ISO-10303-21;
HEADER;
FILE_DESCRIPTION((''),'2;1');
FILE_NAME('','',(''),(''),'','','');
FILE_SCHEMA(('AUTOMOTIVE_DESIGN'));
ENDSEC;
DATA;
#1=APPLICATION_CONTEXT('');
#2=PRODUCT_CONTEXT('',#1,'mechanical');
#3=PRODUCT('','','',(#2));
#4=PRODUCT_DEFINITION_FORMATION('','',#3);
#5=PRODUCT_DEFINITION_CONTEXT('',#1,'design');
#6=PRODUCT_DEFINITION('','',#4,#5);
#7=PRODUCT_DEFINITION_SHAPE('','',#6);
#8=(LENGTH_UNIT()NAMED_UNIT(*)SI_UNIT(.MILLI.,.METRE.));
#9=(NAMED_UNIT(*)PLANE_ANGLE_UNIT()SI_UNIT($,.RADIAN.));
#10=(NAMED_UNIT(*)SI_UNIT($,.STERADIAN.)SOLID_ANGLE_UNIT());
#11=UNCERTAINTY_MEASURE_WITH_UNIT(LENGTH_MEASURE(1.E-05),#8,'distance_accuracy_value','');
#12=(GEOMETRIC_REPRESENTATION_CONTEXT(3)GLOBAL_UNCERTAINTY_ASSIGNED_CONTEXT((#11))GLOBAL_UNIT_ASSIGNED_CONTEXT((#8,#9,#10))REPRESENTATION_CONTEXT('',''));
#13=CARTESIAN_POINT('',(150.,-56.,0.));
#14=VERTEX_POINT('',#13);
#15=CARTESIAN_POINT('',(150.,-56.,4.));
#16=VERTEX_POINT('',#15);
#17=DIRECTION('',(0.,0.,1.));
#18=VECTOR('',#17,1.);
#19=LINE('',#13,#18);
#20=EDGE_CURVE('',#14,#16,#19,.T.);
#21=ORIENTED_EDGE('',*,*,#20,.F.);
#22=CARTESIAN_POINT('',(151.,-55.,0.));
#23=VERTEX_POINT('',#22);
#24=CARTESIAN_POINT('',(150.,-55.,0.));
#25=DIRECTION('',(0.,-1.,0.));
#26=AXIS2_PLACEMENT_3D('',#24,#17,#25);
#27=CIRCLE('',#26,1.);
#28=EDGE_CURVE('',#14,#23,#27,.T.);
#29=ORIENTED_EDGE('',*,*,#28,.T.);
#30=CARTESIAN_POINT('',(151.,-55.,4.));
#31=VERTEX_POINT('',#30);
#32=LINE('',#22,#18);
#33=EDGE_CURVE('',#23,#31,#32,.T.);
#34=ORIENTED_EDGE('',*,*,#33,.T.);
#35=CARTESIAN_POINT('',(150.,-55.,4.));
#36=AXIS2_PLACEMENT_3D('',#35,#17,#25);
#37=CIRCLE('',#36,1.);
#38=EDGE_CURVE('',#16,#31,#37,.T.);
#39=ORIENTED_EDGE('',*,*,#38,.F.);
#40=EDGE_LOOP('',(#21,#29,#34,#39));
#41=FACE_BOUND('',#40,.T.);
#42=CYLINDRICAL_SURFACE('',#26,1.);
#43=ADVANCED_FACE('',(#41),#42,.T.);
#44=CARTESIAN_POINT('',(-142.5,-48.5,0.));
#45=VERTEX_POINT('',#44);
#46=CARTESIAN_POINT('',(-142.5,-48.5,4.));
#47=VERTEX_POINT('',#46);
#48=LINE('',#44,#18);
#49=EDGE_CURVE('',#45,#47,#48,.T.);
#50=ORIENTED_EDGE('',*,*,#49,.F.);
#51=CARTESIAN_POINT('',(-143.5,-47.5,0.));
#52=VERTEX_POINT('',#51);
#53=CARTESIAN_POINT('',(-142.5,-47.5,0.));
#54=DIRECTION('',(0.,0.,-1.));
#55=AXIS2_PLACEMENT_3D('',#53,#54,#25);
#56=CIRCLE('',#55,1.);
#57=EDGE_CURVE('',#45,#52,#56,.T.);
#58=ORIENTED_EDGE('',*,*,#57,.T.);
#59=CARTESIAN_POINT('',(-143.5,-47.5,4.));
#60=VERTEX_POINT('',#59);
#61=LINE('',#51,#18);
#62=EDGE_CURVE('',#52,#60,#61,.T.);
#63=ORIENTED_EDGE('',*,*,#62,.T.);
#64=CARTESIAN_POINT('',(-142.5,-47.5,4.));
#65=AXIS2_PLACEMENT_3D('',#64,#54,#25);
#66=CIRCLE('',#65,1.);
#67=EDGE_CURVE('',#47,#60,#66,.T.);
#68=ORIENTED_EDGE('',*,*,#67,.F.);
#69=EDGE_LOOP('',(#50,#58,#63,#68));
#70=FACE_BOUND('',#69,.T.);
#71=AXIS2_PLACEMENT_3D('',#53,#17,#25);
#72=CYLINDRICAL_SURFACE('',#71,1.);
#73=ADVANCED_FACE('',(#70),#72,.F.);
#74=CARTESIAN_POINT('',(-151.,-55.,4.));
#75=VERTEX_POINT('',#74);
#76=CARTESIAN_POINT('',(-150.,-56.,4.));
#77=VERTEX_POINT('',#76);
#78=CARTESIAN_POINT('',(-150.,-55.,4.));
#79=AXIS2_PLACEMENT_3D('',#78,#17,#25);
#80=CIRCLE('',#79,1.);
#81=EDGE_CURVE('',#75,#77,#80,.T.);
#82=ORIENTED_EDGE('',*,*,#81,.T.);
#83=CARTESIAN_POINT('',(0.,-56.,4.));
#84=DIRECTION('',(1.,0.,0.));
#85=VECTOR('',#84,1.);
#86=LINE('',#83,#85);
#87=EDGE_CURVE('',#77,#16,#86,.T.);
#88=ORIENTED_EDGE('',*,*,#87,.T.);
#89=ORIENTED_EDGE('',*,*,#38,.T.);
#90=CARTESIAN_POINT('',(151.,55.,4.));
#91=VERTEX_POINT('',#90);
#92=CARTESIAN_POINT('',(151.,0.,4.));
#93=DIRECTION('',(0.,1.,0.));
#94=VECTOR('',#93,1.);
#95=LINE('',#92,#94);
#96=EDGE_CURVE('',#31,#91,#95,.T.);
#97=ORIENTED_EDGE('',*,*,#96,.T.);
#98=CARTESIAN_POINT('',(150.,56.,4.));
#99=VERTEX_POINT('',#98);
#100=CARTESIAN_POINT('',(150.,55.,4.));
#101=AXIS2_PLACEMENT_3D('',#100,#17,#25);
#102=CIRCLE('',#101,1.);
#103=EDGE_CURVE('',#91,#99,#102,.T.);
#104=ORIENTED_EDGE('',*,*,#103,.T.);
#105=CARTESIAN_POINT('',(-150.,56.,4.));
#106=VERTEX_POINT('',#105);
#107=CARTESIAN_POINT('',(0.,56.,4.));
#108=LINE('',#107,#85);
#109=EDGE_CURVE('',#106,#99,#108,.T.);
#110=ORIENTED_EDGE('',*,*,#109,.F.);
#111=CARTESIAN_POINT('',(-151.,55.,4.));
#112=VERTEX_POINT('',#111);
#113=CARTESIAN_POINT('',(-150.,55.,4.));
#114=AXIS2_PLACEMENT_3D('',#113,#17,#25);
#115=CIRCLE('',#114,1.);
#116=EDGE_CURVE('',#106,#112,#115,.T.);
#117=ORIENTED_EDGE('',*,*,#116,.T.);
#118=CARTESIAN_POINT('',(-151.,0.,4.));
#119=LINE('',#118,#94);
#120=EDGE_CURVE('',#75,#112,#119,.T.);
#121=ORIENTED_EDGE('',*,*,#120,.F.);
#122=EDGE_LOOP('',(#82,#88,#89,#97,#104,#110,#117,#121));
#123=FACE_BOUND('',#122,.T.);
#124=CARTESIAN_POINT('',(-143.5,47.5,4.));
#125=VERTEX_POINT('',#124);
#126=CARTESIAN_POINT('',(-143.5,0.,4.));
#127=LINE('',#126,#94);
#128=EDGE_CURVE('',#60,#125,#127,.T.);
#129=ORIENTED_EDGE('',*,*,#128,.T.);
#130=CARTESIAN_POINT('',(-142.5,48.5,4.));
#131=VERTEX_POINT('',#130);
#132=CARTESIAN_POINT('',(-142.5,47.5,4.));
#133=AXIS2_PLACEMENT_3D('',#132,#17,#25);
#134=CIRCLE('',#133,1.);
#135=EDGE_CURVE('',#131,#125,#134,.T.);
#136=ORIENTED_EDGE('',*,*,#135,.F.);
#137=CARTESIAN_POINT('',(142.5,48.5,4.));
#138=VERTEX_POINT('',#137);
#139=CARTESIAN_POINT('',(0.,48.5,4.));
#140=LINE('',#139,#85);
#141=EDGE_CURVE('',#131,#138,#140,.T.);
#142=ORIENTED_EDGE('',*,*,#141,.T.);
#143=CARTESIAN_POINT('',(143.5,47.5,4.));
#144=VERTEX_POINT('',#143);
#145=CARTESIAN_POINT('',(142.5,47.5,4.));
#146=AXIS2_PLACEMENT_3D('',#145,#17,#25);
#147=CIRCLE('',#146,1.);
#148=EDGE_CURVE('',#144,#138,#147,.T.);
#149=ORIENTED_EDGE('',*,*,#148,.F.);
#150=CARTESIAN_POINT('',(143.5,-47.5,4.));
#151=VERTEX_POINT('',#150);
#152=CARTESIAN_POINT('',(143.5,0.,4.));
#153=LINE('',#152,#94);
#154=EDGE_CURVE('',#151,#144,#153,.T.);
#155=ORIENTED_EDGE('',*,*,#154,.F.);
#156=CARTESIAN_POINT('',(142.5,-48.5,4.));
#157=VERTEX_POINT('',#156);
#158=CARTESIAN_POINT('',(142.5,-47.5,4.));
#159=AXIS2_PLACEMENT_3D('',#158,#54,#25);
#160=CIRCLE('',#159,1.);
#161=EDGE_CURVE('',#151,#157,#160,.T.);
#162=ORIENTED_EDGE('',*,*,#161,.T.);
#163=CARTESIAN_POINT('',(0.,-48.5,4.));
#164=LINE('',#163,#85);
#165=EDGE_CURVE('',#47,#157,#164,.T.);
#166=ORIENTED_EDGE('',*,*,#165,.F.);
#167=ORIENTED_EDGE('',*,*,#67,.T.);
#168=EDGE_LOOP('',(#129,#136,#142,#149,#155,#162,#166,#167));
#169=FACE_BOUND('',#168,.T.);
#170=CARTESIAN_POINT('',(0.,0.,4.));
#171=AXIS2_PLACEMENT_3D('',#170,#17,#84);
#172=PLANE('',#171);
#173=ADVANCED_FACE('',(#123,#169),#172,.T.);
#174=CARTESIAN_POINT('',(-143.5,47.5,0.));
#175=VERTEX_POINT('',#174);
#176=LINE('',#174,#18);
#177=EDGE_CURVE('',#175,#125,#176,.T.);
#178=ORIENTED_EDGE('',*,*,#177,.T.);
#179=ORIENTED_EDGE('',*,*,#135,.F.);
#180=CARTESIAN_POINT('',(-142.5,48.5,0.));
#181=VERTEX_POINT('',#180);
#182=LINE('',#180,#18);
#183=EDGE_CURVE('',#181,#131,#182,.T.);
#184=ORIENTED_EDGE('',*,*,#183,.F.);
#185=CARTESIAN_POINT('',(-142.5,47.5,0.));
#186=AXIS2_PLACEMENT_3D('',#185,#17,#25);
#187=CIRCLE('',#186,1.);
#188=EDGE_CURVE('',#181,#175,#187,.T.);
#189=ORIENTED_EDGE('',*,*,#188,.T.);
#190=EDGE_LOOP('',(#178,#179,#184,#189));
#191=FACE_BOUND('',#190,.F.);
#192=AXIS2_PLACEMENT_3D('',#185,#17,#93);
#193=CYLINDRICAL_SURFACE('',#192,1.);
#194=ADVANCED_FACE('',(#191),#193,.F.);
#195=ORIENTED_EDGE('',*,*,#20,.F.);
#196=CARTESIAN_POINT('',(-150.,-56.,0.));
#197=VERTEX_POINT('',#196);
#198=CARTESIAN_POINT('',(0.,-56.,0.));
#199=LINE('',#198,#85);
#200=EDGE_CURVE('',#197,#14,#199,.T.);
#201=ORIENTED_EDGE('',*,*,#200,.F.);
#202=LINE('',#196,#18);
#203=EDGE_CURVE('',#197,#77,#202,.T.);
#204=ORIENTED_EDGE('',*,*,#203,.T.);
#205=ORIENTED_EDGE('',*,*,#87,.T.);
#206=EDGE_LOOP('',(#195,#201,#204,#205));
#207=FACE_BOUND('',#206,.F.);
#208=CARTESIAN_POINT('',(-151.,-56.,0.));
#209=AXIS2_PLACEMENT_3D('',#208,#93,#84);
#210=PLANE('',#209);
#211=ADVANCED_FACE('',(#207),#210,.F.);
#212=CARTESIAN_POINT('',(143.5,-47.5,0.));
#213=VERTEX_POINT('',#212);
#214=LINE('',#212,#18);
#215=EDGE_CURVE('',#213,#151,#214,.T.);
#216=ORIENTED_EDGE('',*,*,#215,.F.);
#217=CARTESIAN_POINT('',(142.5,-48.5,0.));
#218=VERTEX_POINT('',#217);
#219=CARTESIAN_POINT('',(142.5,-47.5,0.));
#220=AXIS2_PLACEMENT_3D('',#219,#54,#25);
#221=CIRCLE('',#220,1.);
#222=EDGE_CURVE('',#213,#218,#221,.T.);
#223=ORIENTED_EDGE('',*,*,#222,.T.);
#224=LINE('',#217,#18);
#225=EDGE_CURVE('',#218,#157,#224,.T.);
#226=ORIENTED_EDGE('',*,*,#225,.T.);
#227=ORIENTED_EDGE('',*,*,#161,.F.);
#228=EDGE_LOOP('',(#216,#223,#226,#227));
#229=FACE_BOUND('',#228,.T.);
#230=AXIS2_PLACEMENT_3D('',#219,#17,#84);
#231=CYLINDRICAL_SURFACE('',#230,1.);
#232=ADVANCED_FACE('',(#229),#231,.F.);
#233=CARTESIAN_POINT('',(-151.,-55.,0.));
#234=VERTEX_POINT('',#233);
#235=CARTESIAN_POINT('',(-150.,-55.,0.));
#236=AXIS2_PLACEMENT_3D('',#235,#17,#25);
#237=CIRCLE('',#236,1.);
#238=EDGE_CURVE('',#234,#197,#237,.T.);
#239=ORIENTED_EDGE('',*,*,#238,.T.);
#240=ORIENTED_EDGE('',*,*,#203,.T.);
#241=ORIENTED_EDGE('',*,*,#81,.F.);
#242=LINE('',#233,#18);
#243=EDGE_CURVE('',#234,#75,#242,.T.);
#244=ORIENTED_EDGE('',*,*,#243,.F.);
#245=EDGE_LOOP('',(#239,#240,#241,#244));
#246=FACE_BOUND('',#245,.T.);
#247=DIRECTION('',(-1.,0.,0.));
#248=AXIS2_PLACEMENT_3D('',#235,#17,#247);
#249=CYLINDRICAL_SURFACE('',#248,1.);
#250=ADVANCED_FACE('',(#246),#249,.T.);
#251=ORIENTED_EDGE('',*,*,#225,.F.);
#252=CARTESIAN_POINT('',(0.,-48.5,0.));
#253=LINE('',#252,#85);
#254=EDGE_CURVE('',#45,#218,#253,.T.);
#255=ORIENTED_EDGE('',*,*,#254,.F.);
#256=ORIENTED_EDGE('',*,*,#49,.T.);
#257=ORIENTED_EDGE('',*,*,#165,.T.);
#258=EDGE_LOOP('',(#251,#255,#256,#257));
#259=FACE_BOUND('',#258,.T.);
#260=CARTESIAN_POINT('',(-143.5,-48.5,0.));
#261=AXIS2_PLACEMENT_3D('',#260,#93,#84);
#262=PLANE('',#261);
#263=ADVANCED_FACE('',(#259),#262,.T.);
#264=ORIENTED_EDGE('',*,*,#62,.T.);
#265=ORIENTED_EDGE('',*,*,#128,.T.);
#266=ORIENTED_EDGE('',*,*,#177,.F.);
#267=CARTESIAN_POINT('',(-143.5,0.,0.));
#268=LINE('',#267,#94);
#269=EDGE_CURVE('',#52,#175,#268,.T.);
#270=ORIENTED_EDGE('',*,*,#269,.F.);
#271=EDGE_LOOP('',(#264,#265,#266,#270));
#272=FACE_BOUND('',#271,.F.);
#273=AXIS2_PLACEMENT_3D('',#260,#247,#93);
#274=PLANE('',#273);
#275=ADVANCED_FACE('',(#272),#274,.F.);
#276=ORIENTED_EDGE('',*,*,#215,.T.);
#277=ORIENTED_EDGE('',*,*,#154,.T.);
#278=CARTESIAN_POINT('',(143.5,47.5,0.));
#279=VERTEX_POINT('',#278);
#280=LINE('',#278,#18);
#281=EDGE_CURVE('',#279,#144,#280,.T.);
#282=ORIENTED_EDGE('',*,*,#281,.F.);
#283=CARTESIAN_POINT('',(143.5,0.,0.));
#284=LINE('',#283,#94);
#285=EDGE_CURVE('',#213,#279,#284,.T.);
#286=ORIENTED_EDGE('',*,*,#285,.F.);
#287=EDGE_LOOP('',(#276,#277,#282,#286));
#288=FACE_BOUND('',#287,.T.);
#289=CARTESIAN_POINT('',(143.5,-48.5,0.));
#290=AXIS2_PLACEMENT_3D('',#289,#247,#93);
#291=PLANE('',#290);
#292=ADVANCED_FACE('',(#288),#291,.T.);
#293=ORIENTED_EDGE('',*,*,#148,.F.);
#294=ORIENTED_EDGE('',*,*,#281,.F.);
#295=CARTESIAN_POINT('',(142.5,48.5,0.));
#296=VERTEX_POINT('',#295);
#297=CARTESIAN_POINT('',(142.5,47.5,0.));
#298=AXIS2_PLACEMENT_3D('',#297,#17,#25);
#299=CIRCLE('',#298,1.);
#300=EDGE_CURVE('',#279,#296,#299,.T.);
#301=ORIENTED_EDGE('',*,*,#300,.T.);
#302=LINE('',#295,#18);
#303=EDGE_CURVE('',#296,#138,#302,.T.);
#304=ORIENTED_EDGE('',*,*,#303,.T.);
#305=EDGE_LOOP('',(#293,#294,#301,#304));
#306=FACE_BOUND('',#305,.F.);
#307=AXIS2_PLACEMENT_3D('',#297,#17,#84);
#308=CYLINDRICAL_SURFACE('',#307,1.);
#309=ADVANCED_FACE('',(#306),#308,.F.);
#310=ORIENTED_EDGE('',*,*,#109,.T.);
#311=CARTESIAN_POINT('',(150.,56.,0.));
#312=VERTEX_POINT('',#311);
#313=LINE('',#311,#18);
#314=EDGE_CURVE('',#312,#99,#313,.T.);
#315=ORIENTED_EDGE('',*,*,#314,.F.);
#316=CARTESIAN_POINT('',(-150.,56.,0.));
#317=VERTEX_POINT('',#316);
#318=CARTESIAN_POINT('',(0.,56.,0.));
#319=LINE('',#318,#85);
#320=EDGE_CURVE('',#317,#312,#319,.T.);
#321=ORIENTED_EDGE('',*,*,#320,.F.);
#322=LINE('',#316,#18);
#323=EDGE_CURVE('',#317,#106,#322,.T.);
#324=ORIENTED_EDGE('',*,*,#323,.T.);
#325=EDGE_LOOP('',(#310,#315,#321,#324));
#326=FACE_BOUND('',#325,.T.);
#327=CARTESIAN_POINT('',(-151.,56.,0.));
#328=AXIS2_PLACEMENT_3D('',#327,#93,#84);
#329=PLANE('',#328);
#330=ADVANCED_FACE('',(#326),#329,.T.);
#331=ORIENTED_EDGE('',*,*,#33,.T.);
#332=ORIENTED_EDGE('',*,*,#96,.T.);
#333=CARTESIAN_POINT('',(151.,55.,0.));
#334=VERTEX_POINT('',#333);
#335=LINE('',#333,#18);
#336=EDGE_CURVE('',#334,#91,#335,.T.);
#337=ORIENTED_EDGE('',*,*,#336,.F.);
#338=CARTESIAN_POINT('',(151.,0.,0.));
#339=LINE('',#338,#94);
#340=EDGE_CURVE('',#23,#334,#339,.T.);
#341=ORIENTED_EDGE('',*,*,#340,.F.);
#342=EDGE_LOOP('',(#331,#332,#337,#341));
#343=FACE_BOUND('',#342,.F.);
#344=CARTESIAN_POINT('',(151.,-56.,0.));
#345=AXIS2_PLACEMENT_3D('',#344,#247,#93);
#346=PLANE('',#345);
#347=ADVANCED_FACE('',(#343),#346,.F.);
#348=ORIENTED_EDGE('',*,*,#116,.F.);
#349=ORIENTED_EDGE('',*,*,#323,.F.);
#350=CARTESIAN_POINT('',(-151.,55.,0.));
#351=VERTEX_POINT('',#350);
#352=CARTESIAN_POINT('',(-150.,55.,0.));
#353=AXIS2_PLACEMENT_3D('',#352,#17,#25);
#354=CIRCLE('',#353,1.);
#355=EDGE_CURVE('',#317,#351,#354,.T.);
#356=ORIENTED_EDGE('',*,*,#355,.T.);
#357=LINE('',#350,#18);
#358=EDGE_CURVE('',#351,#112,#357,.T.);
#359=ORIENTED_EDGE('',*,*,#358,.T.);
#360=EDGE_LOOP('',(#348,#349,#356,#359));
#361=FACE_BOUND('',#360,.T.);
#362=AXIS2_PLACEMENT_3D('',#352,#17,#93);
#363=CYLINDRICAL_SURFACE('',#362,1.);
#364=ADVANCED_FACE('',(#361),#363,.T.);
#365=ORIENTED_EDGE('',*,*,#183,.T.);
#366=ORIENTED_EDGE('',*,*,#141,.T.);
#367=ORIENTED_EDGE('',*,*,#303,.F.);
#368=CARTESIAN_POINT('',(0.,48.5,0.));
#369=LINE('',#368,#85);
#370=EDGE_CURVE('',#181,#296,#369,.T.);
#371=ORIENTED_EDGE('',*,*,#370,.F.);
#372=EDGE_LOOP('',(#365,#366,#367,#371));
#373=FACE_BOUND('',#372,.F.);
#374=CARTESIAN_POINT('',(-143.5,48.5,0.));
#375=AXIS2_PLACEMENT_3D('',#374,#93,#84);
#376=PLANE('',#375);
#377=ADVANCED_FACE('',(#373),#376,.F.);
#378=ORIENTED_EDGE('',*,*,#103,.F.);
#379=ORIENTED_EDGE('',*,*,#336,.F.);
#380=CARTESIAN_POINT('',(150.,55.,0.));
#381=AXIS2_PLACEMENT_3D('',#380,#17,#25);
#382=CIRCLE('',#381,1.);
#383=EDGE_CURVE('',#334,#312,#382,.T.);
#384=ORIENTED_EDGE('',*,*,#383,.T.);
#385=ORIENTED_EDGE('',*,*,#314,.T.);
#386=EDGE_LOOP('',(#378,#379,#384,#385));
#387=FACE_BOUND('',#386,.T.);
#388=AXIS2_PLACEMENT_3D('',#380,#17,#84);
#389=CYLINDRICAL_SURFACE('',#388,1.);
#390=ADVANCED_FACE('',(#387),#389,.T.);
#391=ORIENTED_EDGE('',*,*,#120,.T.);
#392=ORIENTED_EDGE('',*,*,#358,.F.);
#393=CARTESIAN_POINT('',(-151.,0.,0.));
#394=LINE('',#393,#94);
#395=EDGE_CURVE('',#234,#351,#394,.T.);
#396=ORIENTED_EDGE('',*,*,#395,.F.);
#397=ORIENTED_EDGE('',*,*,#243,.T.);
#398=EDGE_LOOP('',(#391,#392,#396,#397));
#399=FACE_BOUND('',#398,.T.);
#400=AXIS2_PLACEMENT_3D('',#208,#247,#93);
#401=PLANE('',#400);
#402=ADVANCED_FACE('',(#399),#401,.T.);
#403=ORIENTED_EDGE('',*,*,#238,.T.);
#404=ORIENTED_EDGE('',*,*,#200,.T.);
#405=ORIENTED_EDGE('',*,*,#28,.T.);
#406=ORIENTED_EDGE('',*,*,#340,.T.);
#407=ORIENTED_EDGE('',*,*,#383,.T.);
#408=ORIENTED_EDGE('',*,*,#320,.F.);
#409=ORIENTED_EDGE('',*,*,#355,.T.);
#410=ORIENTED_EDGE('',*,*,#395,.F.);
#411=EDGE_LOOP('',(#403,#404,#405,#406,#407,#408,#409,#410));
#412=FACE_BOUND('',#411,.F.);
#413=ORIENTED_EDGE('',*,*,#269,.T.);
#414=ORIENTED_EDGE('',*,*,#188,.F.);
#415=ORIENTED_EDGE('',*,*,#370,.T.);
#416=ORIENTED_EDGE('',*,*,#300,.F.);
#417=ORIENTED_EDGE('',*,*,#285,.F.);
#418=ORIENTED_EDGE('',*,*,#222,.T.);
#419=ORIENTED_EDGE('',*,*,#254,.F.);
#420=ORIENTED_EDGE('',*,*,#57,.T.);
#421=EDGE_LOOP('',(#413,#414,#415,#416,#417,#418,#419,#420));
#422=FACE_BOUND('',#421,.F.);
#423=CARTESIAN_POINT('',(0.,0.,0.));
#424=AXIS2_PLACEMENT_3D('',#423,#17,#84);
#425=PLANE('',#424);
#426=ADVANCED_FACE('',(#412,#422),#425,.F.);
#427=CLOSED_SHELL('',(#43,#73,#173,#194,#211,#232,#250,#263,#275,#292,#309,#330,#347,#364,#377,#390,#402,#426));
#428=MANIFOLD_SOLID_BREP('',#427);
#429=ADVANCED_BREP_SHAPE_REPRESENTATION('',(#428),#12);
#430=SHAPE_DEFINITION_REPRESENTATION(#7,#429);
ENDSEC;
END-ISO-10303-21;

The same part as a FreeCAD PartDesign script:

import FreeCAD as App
import Part
import Sketcher
from FreeCAD import Vector
Q = App.Units.Quantity


def edges_at(feature, points):
    """Names of the edges that pass closest to the given points."""
    edges = feature.Shape.Edges
    near = lambda p: min(range(len(edges)), key=lambda i: edges[i].distToShape(Part.Vertex(*p))[0])
    return sorted({f"Edge{near(p) + 1}" for p in points})

doc = App.newDocument("Part")
body = doc.addObject("PartDesign::Body", "Body")

# Sketch on XY plane
sketch1 = doc.addObject("Sketcher::SketchObject", "Sketch")
body.addObject(sketch1)
sketch1.AttachmentSupport = (doc.XY_Plane, [""])
sketch1.MapMode = "FlatFace"
sketch1.addGeometry([
    Part.LineSegment(Vector(-151, 56, 0), Vector(-151, -56, 0)),  # 0
    Part.LineSegment(Vector(-151, -56, 0), Vector(151, -56, 0)),  # 1
    Part.LineSegment(Vector(151, -56, 0), Vector(151, 56, 0)),  # 2
    Part.LineSegment(Vector(151, 56, 0), Vector(-151, 56, 0)),  # 3
    Part.LineSegment(Vector(144, -48, 0), Vector(-144, -48, 0)),  # 4
    Part.LineSegment(Vector(-144, -48, 0), Vector(-144, 48, 0)),  # 5
    Part.LineSegment(Vector(-144, 48, 0), Vector(144, 48, 0)),  # 6
    Part.LineSegment(Vector(144, 48, 0), Vector(144, -48, 0)),  # 7
], False)
sketch1.addConstraint([
    Sketcher.Constraint("Coincident", 0, 2, 1, 1),
    Sketcher.Constraint("Coincident", 1, 2, 2, 1),
    Sketcher.Constraint("Coincident", 2, 2, 3, 1),
    Sketcher.Constraint("Coincident", 3, 2, 0, 1),
    Sketcher.Constraint("Coincident", 4, 2, 5, 1),
    Sketcher.Constraint("Coincident", 5, 2, 6, 1),
    Sketcher.Constraint("Coincident", 6, 2, 7, 1),
    Sketcher.Constraint("Coincident", 7, 2, 4, 1),
    Sketcher.Constraint("Vertical", 0),
    Sketcher.Constraint("Horizontal", 1),
    Sketcher.Constraint("Vertical", 2),
    Sketcher.Constraint("Horizontal", 3),
    Sketcher.Constraint("Horizontal", 4),
    Sketcher.Constraint("Vertical", 5),
    Sketcher.Constraint("Horizontal", 6),
    Sketcher.Constraint("Vertical", 7),
    Sketcher.Constraint("Symmetric", 0, 2, 2, 2, -1, 1),
    Sketcher.Constraint("Symmetric", 4, 2, 6, 2, -1, 1),
    Sketcher.Constraint("DistanceX", 1, 1, 1, 2, Q("302 mm")),
    Sketcher.Constraint("DistanceX", 4, 2, 4, 1, Q("287 mm")),
    Sketcher.Constraint("DistanceY", 0, 2, 0, 1, Q("112 mm")),
    Sketcher.Constraint("DistanceY", 5, 1, 5, 2, Q("97 mm")),
])
pad1 = doc.addObject("PartDesign::Pad", "Pad")
body.addObject(pad1)
pad1.Profile = sketch1
pad1.Length = 4
doc.recompute()

fillet = doc.addObject("PartDesign::Fillet", "Fillet")
body.addObject(fillet)
fillet.Base = (pad1, edges_at(pad1, [(-151, -56, 2)]))
fillet.Radius = 1
doc.recompute()

fillet2 = doc.addObject("PartDesign::Fillet", "Fillet001")
body.addObject(fillet2)
fillet2.Base = (fillet, edges_at(fillet, [(151, -56, 2)]))
fillet2.Radius = 1
doc.recompute()

fillet3 = doc.addObject("PartDesign::Fillet", "Fillet002")
body.addObject(fillet3)
fillet3.Base = (fillet2, edges_at(fillet2, [(-143.5, 48.5, 2)]))
fillet3.Radius = 1
doc.recompute()

fillet4 = doc.addObject("PartDesign::Fillet", "Fillet003")
body.addObject(fillet4)
fillet4.Base = (fillet3, edges_at(fillet3, [(151, 56, 2)]))
fillet4.Radius = 1
doc.recompute()

fillet5 = doc.addObject("PartDesign::Fillet", "Fillet004")
body.addObject(fillet5)
fillet5.Base = (fillet4, edges_at(fillet4, [(-151, 56, 2)]))
fillet5.Radius = 1
doc.recompute()

fillet6 = doc.addObject("PartDesign::Fillet", "Fillet005")
body.addObject(fillet6)
fillet6.Base = (fillet5, edges_at(fillet5, [(143.5, -48.5, 2)]))
fillet6.Radius = 1
doc.recompute()

fillet7 = doc.addObject("PartDesign::Fillet", "Fillet006")
body.addObject(fillet7)
fillet7.Base = (fillet6, edges_at(fillet6, [(143.5, 48.5, 2)]))
fillet7.Radius = 1
doc.recompute()

fillet8 = doc.addObject("PartDesign::Fillet", "Fillet007")
body.addObject(fillet8)
fillet8.Base = (fillet7, edges_at(fillet7, [(-143.5, -48.5, 2)]))
fillet8.Radius = 1

doc.recompute()
